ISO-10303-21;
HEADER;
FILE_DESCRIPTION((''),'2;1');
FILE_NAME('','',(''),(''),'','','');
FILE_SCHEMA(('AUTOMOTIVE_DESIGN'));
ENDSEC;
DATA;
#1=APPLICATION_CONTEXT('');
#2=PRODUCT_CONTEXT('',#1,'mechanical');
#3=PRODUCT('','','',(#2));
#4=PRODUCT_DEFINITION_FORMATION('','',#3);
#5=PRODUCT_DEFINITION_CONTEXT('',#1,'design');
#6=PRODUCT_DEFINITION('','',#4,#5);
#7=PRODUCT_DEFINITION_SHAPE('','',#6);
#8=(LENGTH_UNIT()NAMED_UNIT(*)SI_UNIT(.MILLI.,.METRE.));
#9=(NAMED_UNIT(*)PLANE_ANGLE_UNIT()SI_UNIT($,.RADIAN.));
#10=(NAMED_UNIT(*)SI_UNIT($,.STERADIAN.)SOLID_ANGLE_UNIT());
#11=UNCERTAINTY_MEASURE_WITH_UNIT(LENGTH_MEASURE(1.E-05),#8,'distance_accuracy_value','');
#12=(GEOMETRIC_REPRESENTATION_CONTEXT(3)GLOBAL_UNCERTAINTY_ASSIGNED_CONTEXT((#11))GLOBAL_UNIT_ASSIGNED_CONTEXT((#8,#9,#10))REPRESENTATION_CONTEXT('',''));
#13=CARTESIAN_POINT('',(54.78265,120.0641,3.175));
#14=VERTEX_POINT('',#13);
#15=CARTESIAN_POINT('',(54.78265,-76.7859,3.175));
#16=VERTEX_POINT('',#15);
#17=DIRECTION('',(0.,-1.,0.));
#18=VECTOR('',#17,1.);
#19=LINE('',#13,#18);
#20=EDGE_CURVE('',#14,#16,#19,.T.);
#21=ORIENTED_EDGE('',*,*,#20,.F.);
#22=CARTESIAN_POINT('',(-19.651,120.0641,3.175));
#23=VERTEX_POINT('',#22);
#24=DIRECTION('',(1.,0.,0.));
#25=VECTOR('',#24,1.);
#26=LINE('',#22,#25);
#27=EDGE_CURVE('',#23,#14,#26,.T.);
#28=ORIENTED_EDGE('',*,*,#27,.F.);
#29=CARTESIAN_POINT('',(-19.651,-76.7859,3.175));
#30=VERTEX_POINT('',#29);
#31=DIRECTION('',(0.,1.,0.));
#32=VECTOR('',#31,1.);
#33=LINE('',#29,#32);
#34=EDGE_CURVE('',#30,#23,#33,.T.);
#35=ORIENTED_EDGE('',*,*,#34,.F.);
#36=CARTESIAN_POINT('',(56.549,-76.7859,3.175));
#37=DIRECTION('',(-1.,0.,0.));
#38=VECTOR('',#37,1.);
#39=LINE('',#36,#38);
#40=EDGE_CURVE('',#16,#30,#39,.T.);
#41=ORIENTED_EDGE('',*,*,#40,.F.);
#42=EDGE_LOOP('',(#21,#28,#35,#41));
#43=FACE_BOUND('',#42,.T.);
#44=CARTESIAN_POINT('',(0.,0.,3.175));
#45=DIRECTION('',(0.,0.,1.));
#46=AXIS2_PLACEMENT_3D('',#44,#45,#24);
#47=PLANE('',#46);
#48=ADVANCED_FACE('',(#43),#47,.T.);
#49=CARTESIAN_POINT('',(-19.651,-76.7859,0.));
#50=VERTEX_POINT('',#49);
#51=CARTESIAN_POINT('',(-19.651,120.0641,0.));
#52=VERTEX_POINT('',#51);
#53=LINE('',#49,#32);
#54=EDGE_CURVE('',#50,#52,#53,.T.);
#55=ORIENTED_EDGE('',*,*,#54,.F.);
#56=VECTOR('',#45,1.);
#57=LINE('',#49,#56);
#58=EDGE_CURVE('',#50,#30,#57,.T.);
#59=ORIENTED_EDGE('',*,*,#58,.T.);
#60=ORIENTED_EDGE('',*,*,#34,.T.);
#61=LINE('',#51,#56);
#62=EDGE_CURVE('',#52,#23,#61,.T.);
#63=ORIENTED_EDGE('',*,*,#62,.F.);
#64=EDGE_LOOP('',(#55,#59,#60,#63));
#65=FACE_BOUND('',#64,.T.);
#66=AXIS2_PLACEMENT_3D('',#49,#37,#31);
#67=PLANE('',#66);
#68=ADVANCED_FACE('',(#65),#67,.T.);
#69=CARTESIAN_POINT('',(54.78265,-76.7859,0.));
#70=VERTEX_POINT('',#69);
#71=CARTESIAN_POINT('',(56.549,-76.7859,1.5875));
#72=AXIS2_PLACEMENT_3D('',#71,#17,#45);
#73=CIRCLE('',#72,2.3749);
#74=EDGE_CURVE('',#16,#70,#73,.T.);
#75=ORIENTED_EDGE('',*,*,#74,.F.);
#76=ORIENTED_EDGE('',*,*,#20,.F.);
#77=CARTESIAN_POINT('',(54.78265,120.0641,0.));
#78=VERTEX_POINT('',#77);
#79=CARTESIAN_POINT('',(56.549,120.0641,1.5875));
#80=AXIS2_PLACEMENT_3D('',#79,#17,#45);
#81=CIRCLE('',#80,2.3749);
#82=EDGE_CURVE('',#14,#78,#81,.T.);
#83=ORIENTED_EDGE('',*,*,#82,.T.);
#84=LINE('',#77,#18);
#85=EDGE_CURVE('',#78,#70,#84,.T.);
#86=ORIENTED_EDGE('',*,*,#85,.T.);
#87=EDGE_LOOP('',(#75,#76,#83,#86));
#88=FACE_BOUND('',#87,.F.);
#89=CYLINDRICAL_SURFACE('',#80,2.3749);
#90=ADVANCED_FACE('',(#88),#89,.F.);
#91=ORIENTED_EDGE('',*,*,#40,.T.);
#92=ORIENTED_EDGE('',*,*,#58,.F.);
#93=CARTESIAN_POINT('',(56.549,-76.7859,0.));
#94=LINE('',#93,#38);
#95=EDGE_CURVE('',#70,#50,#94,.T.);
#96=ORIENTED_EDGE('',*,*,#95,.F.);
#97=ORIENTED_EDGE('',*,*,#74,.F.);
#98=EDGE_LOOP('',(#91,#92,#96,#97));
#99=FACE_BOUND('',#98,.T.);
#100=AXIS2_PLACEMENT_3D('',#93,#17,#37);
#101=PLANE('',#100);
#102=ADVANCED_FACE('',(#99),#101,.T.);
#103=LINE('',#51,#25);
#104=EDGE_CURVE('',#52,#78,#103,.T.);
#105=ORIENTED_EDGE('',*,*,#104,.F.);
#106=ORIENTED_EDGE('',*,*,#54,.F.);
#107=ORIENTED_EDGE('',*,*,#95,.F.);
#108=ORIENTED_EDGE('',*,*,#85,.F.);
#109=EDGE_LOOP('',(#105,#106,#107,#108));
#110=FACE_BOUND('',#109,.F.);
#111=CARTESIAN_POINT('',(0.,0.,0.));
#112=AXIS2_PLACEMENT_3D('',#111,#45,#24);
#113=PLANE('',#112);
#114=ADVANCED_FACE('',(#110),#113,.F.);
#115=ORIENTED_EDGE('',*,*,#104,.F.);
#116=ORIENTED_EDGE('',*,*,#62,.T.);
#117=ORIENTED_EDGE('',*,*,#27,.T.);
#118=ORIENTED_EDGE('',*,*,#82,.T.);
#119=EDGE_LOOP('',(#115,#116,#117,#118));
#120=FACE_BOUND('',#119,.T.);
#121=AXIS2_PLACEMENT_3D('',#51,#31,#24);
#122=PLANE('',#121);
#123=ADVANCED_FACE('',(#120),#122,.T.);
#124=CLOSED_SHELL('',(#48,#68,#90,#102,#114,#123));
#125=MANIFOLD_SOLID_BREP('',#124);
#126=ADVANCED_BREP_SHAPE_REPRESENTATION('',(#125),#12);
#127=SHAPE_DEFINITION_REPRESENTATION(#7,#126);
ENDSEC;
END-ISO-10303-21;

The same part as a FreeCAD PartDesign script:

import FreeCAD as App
import Part
import Sketcher
from FreeCAD import Vector
Q = App.Units.Quantity


def add_polygon(sketch, points):
    """Adds a closed chain of lines whose ends are joined by coincident constraints."""
    first, n = sketch.GeometryCount, len(points)
    for a, b in zip(points, points[1:] + points[:1]):
        sketch.addGeometry(Part.LineSegment(App.Vector(*a, 0), App.Vector(*b, 0)), False)
    for i in range(n):
        sketch.addConstraint(Sketcher.Constraint("Coincident", first + i, 2, first + (i + 1) % n, 1))

doc = App.newDocument("Part")
body = doc.addObject("PartDesign::Body", "Body")

sketch1 = doc.addObject("Sketcher::SketchObject", "Sketch")
body.addObject(sketch1)
sketch1.AttachmentSupport = (doc.XY_Plane, [""])
sketch1.MapMode = "FlatFace"
add_polygon(sketch1, [(56.549, 120.0641), (-19.651, 120.0641), (-19.651, -76.7859), (56.549, -76.7859)])
sketch1.addConstraint(Sketcher.Constraint("Horizontal", 0))
sketch1.addConstraint(Sketcher.Constraint("Vertical", 1))
sketch1.addConstraint(Sketcher.Constraint("Horizontal", 2))
sketch1.addConstraint(Sketcher.Constraint("Vertical", 3))
sketch1.addConstraint(Sketcher.Constraint("DistanceX", 0, 2, 0, 1, Q("3 in")))
sketch1.addConstraint(Sketcher.Constraint("DistanceY", 1, 2, 1, 1, Q("7.75 in")))
sketch1.addConstraint(Sketcher.Constraint("DistanceX", 0, 2, -1, 1, Q("19.651 mm")))
sketch1.addConstraint(Sketcher.Constraint("DistanceY", -1, 1, 0, 2, Q("120.064 mm")))
pad1 = doc.addObject("PartDesign::Pad", "Pad")
body.addObject(pad1)
pad1.Profile = sketch1
pad1.Length = Q("0.125 in")

sketch2 = doc.addObject("Sketcher::SketchObject", "Sketch001")
body.addObject(sketch2)
sketch2.AttachmentSupport = (doc.XZ_Plane, [""])
sketch2.MapMode = "FlatFace"
sketch2.AttachmentOffset = App.Placement(Vector(0, 0, -120.0641), App.Rotation())
sketch2.addGeometry(Part.Circle(Vector(56.549, 1.5875, 0), Vector(0, 0, 1), 2.3749), False)
sketch2.addConstraint(Sketcher.Constraint("Diameter", 0, Q("0.187 in")))
sketch2.addConstraint(Sketcher.Constraint("DistanceY", -1, 1, 0, 3, Q("0.0625 in")))
sketch2.addConstraint(Sketcher.Constraint("DistanceX", -1, 1, 0, 3, Q("56.549 mm")))
doc.recompute()
hole = doc.addObject("PartDesign::Hole", "Hole")
body.addObject(hole)
hole.Profile = sketch2
hole.ThreadType = "None"
hole.Diameter = Q("0.187 in")
hole.DepthType = "Dimension"
hole.Depth = Q("9 in")
hole.DrillPoint = "Angled"
hole.DrillPointAngle = 118
hole.Reversed = True

doc.recompute()
